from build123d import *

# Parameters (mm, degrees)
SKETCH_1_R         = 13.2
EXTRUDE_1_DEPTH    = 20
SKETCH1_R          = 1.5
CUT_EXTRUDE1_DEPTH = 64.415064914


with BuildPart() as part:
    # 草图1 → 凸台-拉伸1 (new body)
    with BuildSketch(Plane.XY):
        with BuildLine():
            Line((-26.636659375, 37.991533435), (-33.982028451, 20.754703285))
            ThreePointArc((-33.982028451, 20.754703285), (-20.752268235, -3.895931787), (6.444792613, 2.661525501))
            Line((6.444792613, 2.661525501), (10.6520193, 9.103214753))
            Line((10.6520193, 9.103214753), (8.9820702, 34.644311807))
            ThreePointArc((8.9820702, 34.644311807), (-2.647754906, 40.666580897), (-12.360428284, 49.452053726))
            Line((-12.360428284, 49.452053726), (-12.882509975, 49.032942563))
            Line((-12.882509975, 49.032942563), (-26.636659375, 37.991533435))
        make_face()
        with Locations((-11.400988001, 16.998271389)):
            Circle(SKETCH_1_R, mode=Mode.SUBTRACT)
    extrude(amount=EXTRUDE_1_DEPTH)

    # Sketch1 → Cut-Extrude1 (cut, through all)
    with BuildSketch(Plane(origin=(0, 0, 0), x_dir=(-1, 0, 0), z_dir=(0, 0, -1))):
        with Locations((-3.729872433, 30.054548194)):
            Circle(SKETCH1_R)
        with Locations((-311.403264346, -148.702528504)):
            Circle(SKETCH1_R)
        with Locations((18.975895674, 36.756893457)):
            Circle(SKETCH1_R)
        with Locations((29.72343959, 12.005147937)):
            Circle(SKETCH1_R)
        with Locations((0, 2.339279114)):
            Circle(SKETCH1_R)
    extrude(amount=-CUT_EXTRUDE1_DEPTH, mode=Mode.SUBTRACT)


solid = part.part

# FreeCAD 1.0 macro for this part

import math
import FreeCAD as App
import Part
import Sketcher
from FreeCAD import Vector

doc = App.newDocument("Part")
body = doc.addObject("PartDesign::Body", "Body")

sketch1 = body.newObject("Sketcher::SketchObject", "Sketch")
sketch1.AttachmentSupport = (doc.getObject("XY_Plane"), [""])
sketch1.MapMode = "FlatFace"
sketch1.addGeometry(Part.LineSegment(Vector(-26.6, 38, 0), Vector(-34, 20.8, 0)), False)
sketch1.addGeometry(Part.ArcOfCircle(Part.Circle(Vector(-11.4, 17, 0), Vector(0, 0, 1), 22.9), math.radians(171), math.radians(321)), False)
sketch1.addGeometry(Part.LineSegment(Vector(6.4, 2.7, 0), Vector(10.7, 9.1, 0)), False)
sketch1.addGeometry(Part.LineSegment(Vector(10.7, 9.1, 0), Vector(9, 34.6, 0)), False)
sketch1.addGeometry(Part.ArcOfCircle(Part.Circle(Vector(26.4, 82.6, 0), Vector(0, 0, 1), 51), math.radians(-140), math.radians(-110)), False)
sketch1.addGeometry(Part.LineSegment(Vector(-12.4, 49.5, 0), Vector(-12.9, 49, 0)), False)
sketch1.addGeometry(Part.LineSegment(Vector(-12.9, 49, 0), Vector(-26.6, 38, 0)), False)
sketch1.addGeometry(Part.Circle(Vector(-11.4, 17, 0), Vector(0, 0, 1), 13.2), False)
sketch1.addConstraint(Sketcher.Constraint("Coincident", 0, 2, 1, 1))
sketch1.addConstraint(Sketcher.Constraint("Coincident", 1, 2, 2, 1))
sketch1.addConstraint(Sketcher.Constraint("Coincident", 2, 2, 3, 1))
sketch1.addConstraint(Sketcher.Constraint("Coincident", 3, 2, 4, 2))
sketch1.addConstraint(Sketcher.Constraint("Coincident", 4, 1, 5, 1))
sketch1.addConstraint(Sketcher.Constraint("Coincident", 5, 2, 6, 1))
sketch1.addConstraint(Sketcher.Constraint("Coincident", 6, 2, 0, 1))
sketch1.addConstraint(Sketcher.Constraint("Coincident", 7, 3, 1, 3))
sketch1.addConstraint(Sketcher.Constraint("Parallel", 5, 6))
sketch1.addConstraint(Sketcher.Constraint("Radius", 4, 51.0))
sketch1.addConstraint(Sketcher.Constraint("Diameter", 7, 26.4))
sketch1.addConstraint(Sketcher.Constraint("Radius", 1, 22.891356))
sketch1.addConstraint(Sketcher.Constraint("Distance", 2, 7.693901))
sketch1.addConstraint(Sketcher.Constraint("DistanceX", 0, 2, 3, 2, 42.964099))
sketch1.addConstraint(Sketcher.Constraint("DistanceX", 4, 1, 3, 2, 21.342498))
sketch1.addConstraint(Sketcher.Constraint("Distance", 0, 18.736669))
sketch1.addConstraint(Sketcher.Constraint("Distance", 3, 25.595632))
sketch1.addConstraint(Sketcher.Constraint("DistanceX", 1, 3, -1, 1, 11.400988))
sketch1.addConstraint(Sketcher.Constraint("DistanceY", -1, 1, 1, 3, 16.998271))
sketch1.addConstraint(Sketcher.Constraint("DistanceX", -1, 1, 4, 3, 26.42463))
sketch1.addConstraint(Sketcher.Constraint("DistanceX", 0, 2, -1, 1, 33.982028))
sketch1.addConstraint(Sketcher.Constraint("DistanceX", -1, 1, 2, 2, 10.652019))
sketch1.addConstraint(Sketcher.Constraint("DistanceY", -1, 1, 3, 2, 34.644312))
sketch1.addConstraint(Sketcher.Constraint("DistanceX", 5, 2, -1, 1, 12.88251))
sketch1.addConstraint(Sketcher.Constraint("DistanceX", 6, 2, -1, 1, 26.636659))
pad1 = body.newObject("PartDesign::Pad", "Pad")
pad1.Profile = sketch1
pad1.Length = 20

sketch2 = body.newObject("Sketcher::SketchObject", "Sketch001")
sketch2.AttachmentSupport = (doc.getObject("XY_Plane"), [""])
sketch2.MapMode = "FlatFace"
sketch2.addGeometry(Part.Circle(Vector(3.7, 30.1, 0), Vector(0, 0, 1), 1.5), False)
sketch2.addGeometry(Part.Circle(Vector(311.4, -148.7, 0), Vector(0, 0, 1), 1.5), False)
sketch2.addGeometry(Part.Circle(Vector(-19, 36.8, 0), Vector(0, 0, 1), 1.5), False)
sketch2.addGeometry(Part.Circle(Vector(-29.7, 12, 0), Vector(0, 0, 1), 1.5), False)
sketch2.addGeometry(Part.Circle(Vector(0, 2.3, 0), Vector(0, 0, 1), 1.5), False)
sketch2.addConstraint(Sketcher.Constraint("Equal", 0, 1))
sketch2.addConstraint(Sketcher.Constraint("Equal", 1, 2))
sketch2.addConstraint(Sketcher.Constraint("Equal", 2, 3))
sketch2.addConstraint(Sketcher.Constraint("Equal", 3, 4))
sketch2.addConstraint(Sketcher.Constraint("PointOnObject", 4, 3, -2))
sketch2.addConstraint(Sketcher.Constraint("Diameter", 0, 3.0))
sketch2.addConstraint(Sketcher.Constraint("DistanceY", 3, 3, 0, 3, 18.0494))
sketch2.addConstraint(Sketcher.Constraint("DistanceY", -1, 1, 0, 3, 30.054548))
sketch2.addConstraint(Sketcher.Constraint("DistanceY", 1, 3, -1, 1, 148.702529))
sketch2.addConstraint(Sketcher.Constraint("DistanceX", 3, 3, -1, 1, 29.72344))
sketch2.addConstraint(Sketcher.Constraint("DistanceY", -1, 1, 4, 3, 2.339279))
sketch2.addConstraint(Sketcher.Constraint("DistanceX", 0, 3, 1, 3, 307.673392))
sketch2.addConstraint(Sketcher.Constraint("DistanceX", 2, 3, 0, 3, 22.705768))
sketch2.addConstraint(Sketcher.Constraint("DistanceY", 1, 3, 2, 3, 185.459422))
sketch2.addConstraint(Sketcher.Constraint("DistanceX", -1, 1, 0, 3, 3.729872))
pocket1 = body.newObject("PartDesign::Pocket", "Pocket")
pocket1.Profile = sketch2
pocket1.Type = "ThroughAll"
pocket1.Reversed = True

doc.recompute()
